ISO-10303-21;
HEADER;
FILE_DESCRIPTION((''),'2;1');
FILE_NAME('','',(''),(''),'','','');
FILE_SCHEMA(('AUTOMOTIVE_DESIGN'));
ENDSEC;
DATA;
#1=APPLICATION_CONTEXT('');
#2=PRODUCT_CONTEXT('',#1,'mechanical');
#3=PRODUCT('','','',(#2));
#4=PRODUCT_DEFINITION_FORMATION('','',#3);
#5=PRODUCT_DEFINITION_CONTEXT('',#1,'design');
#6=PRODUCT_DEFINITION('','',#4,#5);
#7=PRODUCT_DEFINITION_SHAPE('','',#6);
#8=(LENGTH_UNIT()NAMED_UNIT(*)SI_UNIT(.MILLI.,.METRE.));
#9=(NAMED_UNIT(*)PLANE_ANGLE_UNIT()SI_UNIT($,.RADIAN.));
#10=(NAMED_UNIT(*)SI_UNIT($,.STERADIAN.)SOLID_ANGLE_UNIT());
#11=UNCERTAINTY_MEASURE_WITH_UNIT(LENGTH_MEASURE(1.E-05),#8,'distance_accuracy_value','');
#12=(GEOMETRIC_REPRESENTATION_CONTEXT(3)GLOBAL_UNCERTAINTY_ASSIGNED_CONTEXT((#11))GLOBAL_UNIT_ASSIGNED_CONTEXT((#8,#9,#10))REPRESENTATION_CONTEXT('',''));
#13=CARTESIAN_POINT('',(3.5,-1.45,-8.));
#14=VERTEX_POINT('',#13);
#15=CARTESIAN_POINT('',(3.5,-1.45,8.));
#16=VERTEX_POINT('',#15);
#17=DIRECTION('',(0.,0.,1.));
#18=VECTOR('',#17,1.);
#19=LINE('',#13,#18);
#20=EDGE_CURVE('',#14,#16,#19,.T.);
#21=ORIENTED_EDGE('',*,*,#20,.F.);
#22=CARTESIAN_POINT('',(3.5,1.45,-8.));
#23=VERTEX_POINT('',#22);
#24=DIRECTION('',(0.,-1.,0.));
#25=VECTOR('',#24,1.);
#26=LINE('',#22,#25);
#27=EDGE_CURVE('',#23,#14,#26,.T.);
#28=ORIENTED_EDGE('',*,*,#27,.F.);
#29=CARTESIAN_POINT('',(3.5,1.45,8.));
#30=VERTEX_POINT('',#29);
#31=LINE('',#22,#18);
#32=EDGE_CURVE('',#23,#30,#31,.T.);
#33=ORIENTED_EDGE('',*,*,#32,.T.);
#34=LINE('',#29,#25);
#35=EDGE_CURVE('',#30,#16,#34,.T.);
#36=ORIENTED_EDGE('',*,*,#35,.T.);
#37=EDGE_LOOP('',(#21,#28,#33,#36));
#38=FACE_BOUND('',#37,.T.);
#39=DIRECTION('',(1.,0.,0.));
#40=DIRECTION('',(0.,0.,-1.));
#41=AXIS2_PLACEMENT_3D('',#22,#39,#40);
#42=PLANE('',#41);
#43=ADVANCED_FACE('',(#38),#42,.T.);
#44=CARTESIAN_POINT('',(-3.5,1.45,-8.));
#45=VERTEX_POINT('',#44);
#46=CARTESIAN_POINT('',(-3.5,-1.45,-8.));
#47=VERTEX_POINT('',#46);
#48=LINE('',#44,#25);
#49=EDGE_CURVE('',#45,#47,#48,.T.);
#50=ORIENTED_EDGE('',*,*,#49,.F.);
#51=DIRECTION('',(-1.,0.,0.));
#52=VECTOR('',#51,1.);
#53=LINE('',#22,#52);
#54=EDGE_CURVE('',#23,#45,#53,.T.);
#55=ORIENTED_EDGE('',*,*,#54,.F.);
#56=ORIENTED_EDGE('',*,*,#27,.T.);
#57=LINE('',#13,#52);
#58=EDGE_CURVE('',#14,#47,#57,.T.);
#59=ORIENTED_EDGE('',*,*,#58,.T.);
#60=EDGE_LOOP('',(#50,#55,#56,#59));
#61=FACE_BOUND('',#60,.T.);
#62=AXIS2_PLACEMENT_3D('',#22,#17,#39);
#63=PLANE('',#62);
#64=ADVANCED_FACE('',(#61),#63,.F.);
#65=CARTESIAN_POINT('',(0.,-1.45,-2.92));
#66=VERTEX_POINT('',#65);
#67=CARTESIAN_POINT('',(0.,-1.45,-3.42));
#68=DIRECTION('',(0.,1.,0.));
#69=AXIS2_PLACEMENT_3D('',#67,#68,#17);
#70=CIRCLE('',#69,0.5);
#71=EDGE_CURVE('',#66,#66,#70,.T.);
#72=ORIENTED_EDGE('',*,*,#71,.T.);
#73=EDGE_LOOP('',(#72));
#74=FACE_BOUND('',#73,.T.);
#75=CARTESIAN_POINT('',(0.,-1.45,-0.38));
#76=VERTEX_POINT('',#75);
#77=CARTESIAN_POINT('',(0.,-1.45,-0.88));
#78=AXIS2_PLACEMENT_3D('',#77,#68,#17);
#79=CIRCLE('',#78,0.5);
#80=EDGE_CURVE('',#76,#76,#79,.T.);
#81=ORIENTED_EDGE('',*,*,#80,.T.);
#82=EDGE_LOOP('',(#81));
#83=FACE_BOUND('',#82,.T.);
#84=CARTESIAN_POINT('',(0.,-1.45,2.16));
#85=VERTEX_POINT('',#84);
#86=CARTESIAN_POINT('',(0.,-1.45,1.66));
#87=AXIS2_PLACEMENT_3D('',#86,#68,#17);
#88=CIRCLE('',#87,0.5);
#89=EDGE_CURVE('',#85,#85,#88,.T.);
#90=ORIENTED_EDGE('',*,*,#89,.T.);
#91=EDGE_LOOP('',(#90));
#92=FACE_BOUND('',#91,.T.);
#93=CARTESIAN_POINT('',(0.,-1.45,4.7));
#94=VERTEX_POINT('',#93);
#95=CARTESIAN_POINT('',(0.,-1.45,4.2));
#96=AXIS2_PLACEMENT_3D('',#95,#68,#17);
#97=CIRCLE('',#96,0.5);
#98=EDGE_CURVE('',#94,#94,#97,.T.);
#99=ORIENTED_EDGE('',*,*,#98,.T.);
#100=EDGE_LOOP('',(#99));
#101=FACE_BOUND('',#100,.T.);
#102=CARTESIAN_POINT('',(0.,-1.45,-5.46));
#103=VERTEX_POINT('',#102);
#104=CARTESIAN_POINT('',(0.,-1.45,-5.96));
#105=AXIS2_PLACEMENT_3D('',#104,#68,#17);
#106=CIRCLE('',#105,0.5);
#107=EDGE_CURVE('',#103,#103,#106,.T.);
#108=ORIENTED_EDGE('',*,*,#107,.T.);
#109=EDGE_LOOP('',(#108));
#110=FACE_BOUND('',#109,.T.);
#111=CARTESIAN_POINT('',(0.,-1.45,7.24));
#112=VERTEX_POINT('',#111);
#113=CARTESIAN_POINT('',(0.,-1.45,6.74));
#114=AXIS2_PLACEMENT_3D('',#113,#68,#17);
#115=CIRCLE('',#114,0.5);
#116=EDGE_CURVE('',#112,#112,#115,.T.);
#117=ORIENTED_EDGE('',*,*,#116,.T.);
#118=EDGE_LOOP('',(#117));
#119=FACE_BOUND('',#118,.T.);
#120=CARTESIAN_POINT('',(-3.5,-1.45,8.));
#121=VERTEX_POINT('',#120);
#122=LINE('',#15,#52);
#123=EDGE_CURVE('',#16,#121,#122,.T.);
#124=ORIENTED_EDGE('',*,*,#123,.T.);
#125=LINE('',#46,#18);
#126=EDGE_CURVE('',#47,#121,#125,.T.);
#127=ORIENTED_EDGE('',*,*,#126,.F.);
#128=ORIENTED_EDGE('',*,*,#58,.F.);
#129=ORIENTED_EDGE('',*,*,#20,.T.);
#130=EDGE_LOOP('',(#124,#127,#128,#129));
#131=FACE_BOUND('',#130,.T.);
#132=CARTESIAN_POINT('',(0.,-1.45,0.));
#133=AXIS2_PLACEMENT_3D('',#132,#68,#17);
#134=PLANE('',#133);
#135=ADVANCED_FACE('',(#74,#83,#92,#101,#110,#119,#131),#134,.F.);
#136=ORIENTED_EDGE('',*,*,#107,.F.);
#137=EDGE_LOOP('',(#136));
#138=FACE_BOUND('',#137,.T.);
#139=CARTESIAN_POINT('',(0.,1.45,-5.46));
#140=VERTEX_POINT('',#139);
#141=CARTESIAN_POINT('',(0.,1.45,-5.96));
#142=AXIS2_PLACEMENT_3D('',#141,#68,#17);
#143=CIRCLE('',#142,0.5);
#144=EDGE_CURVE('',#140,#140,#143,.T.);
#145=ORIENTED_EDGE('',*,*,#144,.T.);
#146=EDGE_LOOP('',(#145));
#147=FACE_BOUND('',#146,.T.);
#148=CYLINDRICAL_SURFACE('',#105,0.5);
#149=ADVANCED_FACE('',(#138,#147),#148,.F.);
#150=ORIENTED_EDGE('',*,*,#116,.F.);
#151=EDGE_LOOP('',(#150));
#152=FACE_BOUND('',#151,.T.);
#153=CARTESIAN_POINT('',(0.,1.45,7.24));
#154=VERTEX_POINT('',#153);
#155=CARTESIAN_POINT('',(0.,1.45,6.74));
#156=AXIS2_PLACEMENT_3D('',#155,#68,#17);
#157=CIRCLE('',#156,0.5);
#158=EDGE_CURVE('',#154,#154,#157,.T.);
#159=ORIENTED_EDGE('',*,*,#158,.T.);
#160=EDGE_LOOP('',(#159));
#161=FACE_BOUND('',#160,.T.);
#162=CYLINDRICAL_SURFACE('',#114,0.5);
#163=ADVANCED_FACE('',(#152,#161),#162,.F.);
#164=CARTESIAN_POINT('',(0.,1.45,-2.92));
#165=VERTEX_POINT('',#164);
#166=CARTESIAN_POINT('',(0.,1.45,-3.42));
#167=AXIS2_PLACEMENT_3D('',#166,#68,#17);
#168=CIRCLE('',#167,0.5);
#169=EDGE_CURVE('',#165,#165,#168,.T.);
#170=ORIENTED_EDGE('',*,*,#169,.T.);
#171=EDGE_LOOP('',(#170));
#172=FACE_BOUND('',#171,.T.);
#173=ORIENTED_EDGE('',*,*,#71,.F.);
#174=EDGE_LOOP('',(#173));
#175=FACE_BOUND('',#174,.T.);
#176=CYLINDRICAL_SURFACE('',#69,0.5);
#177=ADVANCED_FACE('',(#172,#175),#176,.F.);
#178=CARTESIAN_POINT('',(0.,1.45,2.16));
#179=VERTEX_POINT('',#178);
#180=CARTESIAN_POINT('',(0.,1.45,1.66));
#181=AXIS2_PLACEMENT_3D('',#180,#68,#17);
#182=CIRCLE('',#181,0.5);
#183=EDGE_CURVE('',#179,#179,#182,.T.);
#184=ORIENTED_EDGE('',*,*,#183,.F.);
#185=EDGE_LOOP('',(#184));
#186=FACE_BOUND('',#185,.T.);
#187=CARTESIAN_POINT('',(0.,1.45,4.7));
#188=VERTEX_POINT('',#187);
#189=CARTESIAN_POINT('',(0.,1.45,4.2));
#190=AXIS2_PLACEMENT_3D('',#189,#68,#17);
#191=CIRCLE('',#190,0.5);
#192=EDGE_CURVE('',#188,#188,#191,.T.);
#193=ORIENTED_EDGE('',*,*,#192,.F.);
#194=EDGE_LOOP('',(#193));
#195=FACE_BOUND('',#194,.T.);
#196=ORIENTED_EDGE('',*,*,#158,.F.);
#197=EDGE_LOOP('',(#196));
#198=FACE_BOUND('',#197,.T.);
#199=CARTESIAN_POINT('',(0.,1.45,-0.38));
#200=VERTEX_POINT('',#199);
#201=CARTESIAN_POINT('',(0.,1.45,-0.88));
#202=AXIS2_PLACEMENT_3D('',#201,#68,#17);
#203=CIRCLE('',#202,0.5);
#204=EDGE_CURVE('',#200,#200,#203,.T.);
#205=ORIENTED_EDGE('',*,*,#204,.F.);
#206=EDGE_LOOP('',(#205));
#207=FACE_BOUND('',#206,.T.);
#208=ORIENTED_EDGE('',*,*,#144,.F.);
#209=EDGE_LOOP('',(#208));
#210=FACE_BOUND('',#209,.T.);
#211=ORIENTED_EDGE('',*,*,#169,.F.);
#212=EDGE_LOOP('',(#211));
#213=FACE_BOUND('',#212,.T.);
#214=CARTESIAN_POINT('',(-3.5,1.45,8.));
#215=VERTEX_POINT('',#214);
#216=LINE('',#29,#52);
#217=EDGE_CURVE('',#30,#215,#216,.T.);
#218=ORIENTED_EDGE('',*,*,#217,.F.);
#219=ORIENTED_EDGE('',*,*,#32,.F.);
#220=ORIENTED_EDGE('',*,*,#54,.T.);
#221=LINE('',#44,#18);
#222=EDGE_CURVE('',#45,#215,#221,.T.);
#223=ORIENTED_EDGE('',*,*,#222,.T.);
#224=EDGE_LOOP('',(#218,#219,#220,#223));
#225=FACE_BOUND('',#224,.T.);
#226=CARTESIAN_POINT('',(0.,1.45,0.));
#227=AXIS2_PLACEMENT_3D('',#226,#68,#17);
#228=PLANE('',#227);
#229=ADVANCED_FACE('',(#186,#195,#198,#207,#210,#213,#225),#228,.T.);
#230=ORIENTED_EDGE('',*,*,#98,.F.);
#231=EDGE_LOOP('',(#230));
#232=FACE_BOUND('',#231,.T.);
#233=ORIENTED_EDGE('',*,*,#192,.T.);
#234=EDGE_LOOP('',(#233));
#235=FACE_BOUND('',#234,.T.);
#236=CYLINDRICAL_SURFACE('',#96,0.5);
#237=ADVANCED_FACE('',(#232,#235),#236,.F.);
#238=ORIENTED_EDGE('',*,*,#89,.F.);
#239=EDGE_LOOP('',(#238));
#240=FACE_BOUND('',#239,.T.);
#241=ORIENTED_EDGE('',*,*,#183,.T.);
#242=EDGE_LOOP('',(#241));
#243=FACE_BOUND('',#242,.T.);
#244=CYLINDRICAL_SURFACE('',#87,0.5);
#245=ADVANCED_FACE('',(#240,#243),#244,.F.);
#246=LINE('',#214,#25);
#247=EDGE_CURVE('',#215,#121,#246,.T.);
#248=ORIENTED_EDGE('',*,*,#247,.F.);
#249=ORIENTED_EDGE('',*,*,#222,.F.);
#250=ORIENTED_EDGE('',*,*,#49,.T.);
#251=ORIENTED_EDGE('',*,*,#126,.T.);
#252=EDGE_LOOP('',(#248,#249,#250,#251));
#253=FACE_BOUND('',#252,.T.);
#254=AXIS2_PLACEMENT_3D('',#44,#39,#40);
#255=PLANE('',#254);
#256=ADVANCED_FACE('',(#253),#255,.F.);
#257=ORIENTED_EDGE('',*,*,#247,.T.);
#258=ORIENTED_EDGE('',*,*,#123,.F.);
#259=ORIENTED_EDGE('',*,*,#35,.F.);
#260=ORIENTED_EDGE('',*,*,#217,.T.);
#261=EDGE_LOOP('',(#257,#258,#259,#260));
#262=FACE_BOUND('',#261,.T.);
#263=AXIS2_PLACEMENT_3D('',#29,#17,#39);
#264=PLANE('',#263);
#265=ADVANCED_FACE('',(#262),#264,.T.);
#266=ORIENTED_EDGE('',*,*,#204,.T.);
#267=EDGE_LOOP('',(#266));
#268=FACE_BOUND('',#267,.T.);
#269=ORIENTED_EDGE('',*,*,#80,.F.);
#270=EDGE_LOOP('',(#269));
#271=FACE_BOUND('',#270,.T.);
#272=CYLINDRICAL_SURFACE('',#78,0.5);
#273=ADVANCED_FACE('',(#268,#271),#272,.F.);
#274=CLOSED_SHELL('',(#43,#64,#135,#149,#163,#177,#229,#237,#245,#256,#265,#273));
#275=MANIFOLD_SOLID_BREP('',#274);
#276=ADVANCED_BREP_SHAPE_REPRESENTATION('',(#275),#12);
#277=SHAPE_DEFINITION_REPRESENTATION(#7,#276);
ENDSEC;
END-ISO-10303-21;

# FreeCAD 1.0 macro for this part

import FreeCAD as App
import Part
import Sketcher

V = App.Vector

doc = App.newDocument("Part")
params = doc.addObject("Spreadsheet::Sheet", "Params")
for row, (alias, value) in enumerate([
    ("sketch1_width", "7 mm"),
    ("sketch1_height", "16 mm"),
    ("pad1_length", "2.9 mm"),
    ("sketch2_diameter", "1 mm"),
    ("linearpattern_pitch", "2.54 mm"),
], start=1):
    params.set(f"A{row}", alias)
    params.set(f"B{row}", "=" + value)
    params.setAlias(f"B{row}", alias)

body = doc.addObject("PartDesign::Body", "Body")

# Sketch on XZ plane
sketch1 = doc.addObject("Sketcher::SketchObject", "Sketch")
body.addObject(sketch1)
sketch1.AttachmentSupport = (doc.XZ_Plane, [""])
sketch1.MapMode = "FlatFace"
sketch1.addGeometry(Part.LineSegment(V(-4, -8, 0), V(-4, 8, 0)), False)
sketch1.addGeometry(Part.LineSegment(V(-4, 8, 0), V(4, 8, 0)), False)
sketch1.addGeometry(Part.LineSegment(V(4, 8, 0), V(4, -8, 0)), False)
sketch1.addGeometry(Part.LineSegment(V(4, -8, 0), V(-4, -8, 0)), False)
sketch1.addConstraint(Sketcher.Constraint("Coincident", 0, 2, 1, 1))
sketch1.addConstraint(Sketcher.Constraint("Coincident", 1, 2, 2, 1))
sketch1.addConstraint(Sketcher.Constraint("Coincident", 2, 2, 3, 1))
sketch1.addConstraint(Sketcher.Constraint("Coincident", 3, 2, 0, 1))
sketch1.addConstraint(Sketcher.Constraint("Vertical", 0))
sketch1.addConstraint(Sketcher.Constraint("Horizontal", 1))
sketch1.addConstraint(Sketcher.Constraint("Vertical", 2))
sketch1.addConstraint(Sketcher.Constraint("Horizontal", 3))
sketch1.addConstraint(Sketcher.Constraint("Symmetric", 0, 2, 2, 2, -1, 1))
sketch1.addConstraint(Sketcher.Constraint("DistanceX", 1, 1, 1, 2, 7.0))
sketch1.addConstraint(Sketcher.Constraint("DistanceY", 0, 1, 0, 2, 16.0))
sketch1.setExpression("Constraints[9]", "Params.sketch1_width")
sketch1.setExpression("Constraints[10]", "Params.sketch1_height")
pad1 = doc.addObject("PartDesign::Pad", "Pad")
body.addObject(pad1)
pad1.Profile = sketch1
pad1.setExpression("Length", "Params.pad1_length")
pad1.Midplane = True

# Sketch on XZ plane
sketch2 = doc.addObject("Sketcher::SketchObject", "Sketch001")
body.addObject(sketch2)
sketch2.AttachmentSupport = (doc.XZ_Plane, [""])
sketch2.MapMode = "FlatFace"
sketch2.AttachmentOffset = App.Placement(V(0, 0, -1.45), App.Rotation())
sketch2.addGeometry(Part.Circle(V(0, -6, 0), V(0, 0, 1), 0.5), False)
sketch2.addConstraint(Sketcher.Constraint("PointOnObject", 0, 3, -2))
sketch2.addConstraint(Sketcher.Constraint("Diameter", 0, 1.0))
sketch2.addConstraint(Sketcher.Constraint("DistanceY", 0, 3, -1, 1, 5.96))
sketch2.setExpression("Constraints[1]", "Params.sketch2_diameter")
pocket1 = doc.addObject("PartDesign::Pocket", "Pocket")
body.addObject(pocket1)
pocket1.Profile = sketch2
pocket1.Type = "ThroughAll"
pocket1.Reversed = True
doc.recompute()

linearpattern = doc.addObject("PartDesign::LinearPattern", "LinearPattern")
body.addObject(linearpattern)
linearpattern.Originals = [pocket1]
linearpattern.Direction = (doc.Z_Axis, [""])
linearpattern.Mode = "offset"
linearpattern.setExpression("Offset", "Params.linearpattern_pitch")
linearpattern.Occurrences = 12
body.Tip = linearpattern

doc.recompute()
